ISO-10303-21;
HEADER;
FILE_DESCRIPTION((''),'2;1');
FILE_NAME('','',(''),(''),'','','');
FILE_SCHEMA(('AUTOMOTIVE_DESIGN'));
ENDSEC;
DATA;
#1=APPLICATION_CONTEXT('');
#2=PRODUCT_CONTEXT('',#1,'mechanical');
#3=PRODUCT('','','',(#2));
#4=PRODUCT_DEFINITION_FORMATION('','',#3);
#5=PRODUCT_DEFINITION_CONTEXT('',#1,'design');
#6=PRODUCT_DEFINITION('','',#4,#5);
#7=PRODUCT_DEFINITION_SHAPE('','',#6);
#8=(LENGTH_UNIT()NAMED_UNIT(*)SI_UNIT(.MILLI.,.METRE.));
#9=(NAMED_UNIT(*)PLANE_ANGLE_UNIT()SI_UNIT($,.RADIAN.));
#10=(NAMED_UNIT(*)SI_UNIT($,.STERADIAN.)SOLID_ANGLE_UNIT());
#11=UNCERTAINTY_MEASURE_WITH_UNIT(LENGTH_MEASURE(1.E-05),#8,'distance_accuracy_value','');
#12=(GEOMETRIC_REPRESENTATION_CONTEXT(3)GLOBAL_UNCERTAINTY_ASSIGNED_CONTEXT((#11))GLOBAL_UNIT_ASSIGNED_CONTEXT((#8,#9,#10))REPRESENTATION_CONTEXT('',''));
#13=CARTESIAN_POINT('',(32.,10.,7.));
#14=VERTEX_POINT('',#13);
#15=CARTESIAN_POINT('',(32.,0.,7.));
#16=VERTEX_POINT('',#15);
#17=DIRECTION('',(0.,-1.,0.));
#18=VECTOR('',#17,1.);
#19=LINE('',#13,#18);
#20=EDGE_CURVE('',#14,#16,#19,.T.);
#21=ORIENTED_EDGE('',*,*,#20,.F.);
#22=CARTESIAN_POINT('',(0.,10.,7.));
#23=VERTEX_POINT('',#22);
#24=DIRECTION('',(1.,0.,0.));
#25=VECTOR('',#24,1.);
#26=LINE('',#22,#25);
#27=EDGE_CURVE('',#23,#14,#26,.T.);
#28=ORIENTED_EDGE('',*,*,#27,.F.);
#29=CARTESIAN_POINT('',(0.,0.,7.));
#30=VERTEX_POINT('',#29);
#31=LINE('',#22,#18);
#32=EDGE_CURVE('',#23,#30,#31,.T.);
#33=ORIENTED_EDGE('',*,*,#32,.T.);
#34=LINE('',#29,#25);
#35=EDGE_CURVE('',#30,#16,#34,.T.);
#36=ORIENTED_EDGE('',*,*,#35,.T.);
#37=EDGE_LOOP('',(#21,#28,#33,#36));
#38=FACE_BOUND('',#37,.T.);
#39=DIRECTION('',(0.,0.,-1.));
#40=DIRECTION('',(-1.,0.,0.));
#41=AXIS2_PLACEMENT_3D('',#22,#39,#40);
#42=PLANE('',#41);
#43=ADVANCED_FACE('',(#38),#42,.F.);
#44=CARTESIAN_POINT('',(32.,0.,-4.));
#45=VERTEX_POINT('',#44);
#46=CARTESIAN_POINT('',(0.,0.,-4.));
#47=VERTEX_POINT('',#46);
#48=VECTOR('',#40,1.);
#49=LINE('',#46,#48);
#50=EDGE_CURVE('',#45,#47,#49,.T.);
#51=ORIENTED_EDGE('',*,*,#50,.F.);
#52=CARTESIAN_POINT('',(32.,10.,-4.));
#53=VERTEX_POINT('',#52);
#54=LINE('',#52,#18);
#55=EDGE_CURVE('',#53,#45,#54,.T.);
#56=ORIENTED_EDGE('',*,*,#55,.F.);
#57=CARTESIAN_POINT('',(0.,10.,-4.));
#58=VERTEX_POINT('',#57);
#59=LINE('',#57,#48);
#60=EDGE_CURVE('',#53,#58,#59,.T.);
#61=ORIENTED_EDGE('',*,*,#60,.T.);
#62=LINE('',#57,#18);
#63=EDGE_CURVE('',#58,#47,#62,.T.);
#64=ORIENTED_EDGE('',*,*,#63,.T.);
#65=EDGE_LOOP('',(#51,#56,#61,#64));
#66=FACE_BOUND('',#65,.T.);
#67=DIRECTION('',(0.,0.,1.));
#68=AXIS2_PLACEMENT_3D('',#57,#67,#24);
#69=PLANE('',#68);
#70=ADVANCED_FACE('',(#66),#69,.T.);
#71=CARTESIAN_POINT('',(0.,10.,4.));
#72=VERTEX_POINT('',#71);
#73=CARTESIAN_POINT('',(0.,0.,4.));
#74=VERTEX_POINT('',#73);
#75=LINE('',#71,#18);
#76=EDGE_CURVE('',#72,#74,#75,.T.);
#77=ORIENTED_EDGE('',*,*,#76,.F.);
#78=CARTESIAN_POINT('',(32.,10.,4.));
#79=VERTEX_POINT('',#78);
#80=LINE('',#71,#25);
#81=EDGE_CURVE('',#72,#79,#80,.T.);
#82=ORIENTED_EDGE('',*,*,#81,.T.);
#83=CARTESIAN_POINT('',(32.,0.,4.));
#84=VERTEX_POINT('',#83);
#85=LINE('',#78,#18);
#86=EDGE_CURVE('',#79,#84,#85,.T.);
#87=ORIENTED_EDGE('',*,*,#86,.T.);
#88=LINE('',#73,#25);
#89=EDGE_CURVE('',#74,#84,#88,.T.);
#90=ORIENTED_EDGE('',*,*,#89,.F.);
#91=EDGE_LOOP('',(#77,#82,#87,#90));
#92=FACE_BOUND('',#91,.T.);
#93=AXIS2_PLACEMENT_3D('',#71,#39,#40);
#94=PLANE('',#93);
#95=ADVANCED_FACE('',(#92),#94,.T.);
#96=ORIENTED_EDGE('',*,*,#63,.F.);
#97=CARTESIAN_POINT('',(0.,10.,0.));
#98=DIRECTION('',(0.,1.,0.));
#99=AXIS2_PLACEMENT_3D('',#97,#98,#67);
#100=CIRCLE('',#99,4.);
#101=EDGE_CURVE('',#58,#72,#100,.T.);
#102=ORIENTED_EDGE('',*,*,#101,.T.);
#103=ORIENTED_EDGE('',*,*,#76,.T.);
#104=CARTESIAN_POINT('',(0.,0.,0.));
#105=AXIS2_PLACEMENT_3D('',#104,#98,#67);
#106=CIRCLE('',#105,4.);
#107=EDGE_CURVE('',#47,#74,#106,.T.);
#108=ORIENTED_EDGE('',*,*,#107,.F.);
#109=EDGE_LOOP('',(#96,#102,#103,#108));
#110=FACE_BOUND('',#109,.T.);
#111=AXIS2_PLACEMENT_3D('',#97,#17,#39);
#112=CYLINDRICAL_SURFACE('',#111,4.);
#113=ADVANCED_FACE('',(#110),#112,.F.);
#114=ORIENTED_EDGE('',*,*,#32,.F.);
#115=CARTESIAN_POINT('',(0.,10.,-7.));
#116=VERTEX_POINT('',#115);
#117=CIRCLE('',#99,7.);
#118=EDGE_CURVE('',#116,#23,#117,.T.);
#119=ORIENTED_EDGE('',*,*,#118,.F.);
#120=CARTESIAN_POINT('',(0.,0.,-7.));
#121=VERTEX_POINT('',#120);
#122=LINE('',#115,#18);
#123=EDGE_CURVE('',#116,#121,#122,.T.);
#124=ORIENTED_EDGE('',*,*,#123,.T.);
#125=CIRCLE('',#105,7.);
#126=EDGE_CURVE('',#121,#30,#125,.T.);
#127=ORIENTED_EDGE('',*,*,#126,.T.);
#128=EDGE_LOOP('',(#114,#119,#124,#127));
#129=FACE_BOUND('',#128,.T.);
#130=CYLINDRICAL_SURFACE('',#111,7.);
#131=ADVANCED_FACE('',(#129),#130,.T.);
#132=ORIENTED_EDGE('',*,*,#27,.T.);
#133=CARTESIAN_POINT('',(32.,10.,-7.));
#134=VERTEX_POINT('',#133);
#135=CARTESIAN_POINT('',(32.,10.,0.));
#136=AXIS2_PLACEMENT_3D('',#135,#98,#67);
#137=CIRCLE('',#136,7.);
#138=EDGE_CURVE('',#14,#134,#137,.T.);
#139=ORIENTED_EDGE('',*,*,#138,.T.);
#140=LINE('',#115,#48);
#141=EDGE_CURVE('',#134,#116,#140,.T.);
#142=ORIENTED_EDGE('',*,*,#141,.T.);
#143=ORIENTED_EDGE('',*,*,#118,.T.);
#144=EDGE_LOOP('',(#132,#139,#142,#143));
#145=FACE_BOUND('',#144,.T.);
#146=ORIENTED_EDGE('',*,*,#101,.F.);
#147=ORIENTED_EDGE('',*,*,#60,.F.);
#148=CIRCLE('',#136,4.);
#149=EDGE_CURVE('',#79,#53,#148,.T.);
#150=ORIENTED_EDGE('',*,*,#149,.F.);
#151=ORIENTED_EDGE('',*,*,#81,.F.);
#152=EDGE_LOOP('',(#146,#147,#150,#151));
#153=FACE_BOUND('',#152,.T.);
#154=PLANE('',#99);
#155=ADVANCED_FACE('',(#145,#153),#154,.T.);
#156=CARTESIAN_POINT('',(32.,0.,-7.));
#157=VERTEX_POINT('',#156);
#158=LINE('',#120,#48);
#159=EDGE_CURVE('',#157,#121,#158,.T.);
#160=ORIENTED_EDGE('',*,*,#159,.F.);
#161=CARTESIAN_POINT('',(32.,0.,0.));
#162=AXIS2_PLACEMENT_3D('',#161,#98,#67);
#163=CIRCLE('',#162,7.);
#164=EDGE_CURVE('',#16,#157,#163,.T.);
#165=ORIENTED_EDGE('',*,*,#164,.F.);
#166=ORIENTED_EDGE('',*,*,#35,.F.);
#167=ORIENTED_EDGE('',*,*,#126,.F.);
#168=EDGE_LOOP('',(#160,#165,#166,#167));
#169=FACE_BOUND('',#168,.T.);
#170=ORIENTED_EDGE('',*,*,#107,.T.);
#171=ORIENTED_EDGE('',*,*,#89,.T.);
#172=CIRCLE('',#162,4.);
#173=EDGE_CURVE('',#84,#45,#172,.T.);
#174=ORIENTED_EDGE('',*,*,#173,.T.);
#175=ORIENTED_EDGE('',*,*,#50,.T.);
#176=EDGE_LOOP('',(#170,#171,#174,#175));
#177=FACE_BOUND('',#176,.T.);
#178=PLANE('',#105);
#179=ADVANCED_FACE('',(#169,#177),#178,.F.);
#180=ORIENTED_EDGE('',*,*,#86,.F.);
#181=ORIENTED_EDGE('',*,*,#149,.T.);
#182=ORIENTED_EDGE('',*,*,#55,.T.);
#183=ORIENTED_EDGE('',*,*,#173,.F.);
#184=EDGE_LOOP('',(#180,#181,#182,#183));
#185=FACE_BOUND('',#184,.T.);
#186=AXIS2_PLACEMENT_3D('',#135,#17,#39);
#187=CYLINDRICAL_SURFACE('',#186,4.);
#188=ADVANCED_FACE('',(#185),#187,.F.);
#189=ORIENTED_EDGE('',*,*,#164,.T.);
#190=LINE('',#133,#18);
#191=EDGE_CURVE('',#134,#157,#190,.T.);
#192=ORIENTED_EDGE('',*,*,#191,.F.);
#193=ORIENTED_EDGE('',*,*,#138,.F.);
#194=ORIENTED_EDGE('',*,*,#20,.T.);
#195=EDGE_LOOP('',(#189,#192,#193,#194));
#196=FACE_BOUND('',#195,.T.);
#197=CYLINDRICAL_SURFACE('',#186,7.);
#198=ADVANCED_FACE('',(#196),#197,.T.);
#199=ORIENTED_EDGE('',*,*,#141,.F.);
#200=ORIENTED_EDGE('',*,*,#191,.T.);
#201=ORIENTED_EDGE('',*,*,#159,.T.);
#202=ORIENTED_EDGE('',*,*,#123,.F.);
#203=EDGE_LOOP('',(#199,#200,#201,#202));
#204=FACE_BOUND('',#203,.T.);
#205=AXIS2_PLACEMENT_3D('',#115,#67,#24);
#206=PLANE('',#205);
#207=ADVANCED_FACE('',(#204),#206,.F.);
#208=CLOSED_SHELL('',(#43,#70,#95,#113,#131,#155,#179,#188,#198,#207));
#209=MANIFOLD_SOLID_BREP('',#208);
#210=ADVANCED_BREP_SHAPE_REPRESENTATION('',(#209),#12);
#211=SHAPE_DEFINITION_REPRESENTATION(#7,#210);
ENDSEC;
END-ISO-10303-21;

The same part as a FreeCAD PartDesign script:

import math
import FreeCAD as App
import Part
import Sketcher

V = App.Vector
Q = App.Units.Quantity

doc = App.newDocument("Part")
body = doc.addObject("PartDesign::Body", "Body")

# Sketch on XZ plane
sketch1 = doc.addObject("Sketcher::SketchObject", "Sketch")
body.addObject(sketch1)
sketch1.AttachmentSupport = (doc.XZ_Plane, [""])
sketch1.MapMode = "FlatFace"
sketch1.addGeometry([
    Part.LineSegment(V(32, -7, 0), V(0, -7, 0)),  # 0
    Part.ArcOfCircle(Part.Circle(V(0, 0, 0), V(0, 0, 1), 7), math.radians(90), math.radians(270)),  # 1
    Part.LineSegment(V(0, 7, 0), V(32, 7, 0)),  # 2
    Part.ArcOfCircle(Part.Circle(V(32, 0, 0), V(0, 0, 1), 7), math.radians(-90), math.radians(90)),  # 3
    Part.LineSegment(V(0, -4, 0), V(32, -4, 0)),  # 4
    Part.ArcOfCircle(Part.Circle(V(32, 0, 0), V(0, 0, 1), 4), math.radians(-90), math.radians(90)),  # 5
    Part.LineSegment(V(32, 4, 0), V(0, 4, 0)),  # 6
    Part.ArcOfCircle(Part.Circle(V(0, 0, 0), V(0, 0, 1), 4), math.radians(90), math.radians(270)),  # 7
], False)
sketch1.addConstraint([
    Sketcher.Constraint("Tangent", 0, 2, 1, 2),
    Sketcher.Constraint("Tangent", 1, 1, 2, 1),
    Sketcher.Constraint("Tangent", 2, 2, 3, 2),
    Sketcher.Constraint("Tangent", 3, 1, 0, 1),
    Sketcher.Constraint("Tangent", 4, 2, 5, 1),
    Sketcher.Constraint("Tangent", 5, 2, 6, 1),
    Sketcher.Constraint("Tangent", 6, 2, 7, 1),
    Sketcher.Constraint("Tangent", 7, 2, 4, 1),
    Sketcher.Constraint("Horizontal", 0),
    Sketcher.Constraint("Horizontal", 2),
    Sketcher.Constraint("Horizontal", 4),
    Sketcher.Constraint("Horizontal", 6),
    Sketcher.Constraint("Coincident", 1, 3, -1, 1),
    Sketcher.Constraint("Coincident", 7, 3, -1, 1),
    Sketcher.Constraint("Vertical", 5, 3, 2, 2),
    Sketcher.Constraint("Radius", 1, Q("7 mm")),
    Sketcher.Constraint("Radius", 5, Q("4 mm")),
    Sketcher.Constraint("DistanceX", 0, 2, 0, 1, Q("32 mm")),
])
pad1 = doc.addObject("PartDesign::Pad", "Pad")
body.addObject(pad1)
pad1.Profile = sketch1
pad1.Length = 10
pad1.Reversed = True

doc.recompute()
